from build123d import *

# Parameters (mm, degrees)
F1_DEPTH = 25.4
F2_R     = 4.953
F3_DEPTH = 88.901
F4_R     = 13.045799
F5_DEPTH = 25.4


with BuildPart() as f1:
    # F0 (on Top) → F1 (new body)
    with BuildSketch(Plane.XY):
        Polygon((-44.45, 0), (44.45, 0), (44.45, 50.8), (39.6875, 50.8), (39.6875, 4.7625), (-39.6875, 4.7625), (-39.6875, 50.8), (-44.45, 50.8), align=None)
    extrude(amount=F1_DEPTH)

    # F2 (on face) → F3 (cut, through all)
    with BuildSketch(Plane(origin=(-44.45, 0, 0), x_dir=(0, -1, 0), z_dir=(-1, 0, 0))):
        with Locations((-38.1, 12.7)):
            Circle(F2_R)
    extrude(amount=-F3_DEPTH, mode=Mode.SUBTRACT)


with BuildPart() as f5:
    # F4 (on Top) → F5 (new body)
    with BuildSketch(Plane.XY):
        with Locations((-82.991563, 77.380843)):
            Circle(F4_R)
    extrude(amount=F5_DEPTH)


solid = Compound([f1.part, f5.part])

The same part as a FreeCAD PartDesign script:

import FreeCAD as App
import Part
import Sketcher

V = App.Vector
Q = App.Units.Quantity

doc = App.newDocument("Part")
body = doc.addObject("PartDesign::Body", "Body")

# Sketch on XY plane
sketch1 = body.newObject("Sketcher::SketchObject", "Sketch")
sketch1.AttachmentSupport = (doc.getObject("XY_Plane"), [""])
sketch1.MapMode = "FlatFace"
sketch1.addGeometry(Part.LineSegment(V(-44.5, 0, 0), V(44.5, 0, 0)), False)
sketch1.addGeometry(Part.LineSegment(V(44.5, 0, 0), V(44.5, 50.8, 0)), False)
sketch1.addGeometry(Part.LineSegment(V(44.5, 50.8, 0), V(39.7, 50.8, 0)), False)
sketch1.addGeometry(Part.LineSegment(V(39.7, 50.8, 0), V(39.7, 4.8, 0)), False)
sketch1.addGeometry(Part.LineSegment(V(39.7, 4.8, 0), V(-39.7, 4.8, 0)), False)
sketch1.addGeometry(Part.LineSegment(V(-39.7, 4.8, 0), V(-39.7, 50.8, 0)), False)
sketch1.addGeometry(Part.LineSegment(V(-39.7, 50.8, 0), V(-44.5, 50.8, 0)), False)
sketch1.addGeometry(Part.LineSegment(V(-44.5, 50.8, 0), V(-44.5, 0, 0)), False)
sketch1.addConstraint(Sketcher.Constraint("Coincident", 0, 2, 1, 1))
sketch1.addConstraint(Sketcher.Constraint("Coincident", 1, 2, 2, 1))
sketch1.addConstraint(Sketcher.Constraint("Coincident", 2, 2, 3, 1))
sketch1.addConstraint(Sketcher.Constraint("Coincident", 3, 2, 4, 1))
sketch1.addConstraint(Sketcher.Constraint("Coincident", 4, 2, 5, 1))
sketch1.addConstraint(Sketcher.Constraint("Coincident", 5, 2, 6, 1))
sketch1.addConstraint(Sketcher.Constraint("Coincident", 6, 2, 7, 1))
sketch1.addConstraint(Sketcher.Constraint("Coincident", 7, 2, 0, 1))
sketch1.addConstraint(Sketcher.Constraint("Horizontal", 0))
sketch1.addConstraint(Sketcher.Constraint("Vertical", 1))
sketch1.addConstraint(Sketcher.Constraint("Horizontal", 2))
sketch1.addConstraint(Sketcher.Constraint("Vertical", 3))
sketch1.addConstraint(Sketcher.Constraint("Horizontal", 4))
sketch1.addConstraint(Sketcher.Constraint("Vertical", 5))
sketch1.addConstraint(Sketcher.Constraint("Horizontal", 6))
sketch1.addConstraint(Sketcher.Constraint("Vertical", 7))
sketch1.addConstraint(Sketcher.Constraint("Symmetric", 0, 2, 7, 2, -1, 1))
sketch1.addConstraint(Sketcher.Constraint("Symmetric", 2, 2, 5, 2, -2))
sketch1.addConstraint(Sketcher.Constraint("DistanceY", 1, 1, 1, 2, Q("2 in")))
sketch1.addConstraint(Sketcher.Constraint("DistanceX", 0, 1, 0, 2, Q("3.5 in")))
sketch1.addConstraint(Sketcher.Constraint("DistanceX", 2, 2, 2, 1, Q("0.1875 in")))
sketch1.addConstraint(Sketcher.Constraint("DistanceY", 3, 2, 3, 1, Q("1.8125 in")))
pad1 = body.newObject("PartDesign::Pad", "Pad")
pad1.Profile = sketch1
pad1.Length = Q("1 in")

# Sketch on YZ plane
sketch2 = body.newObject("Sketcher::SketchObject", "Sketch001")
sketch2.AttachmentSupport = (doc.getObject("YZ_Plane"), [""])
sketch2.MapMode = "FlatFace"
sketch2.AttachmentOffset = App.Placement(V(0, 0, -1.75 * 25.4), App.Rotation())
sketch2.addGeometry(Part.Circle(V(38.1, 12.7, 0), V(0, 0, 1), 5), False)
sketch2.addConstraint(Sketcher.Constraint("Diameter", 0, Q("0.39 in")))
sketch2.addConstraint(Sketcher.Constraint("DistanceX", -1, 1, 0, 3, Q("1.5 in")))
sketch2.addConstraint(Sketcher.Constraint("DistanceY", -1, 1, 0, 3, Q("0.5 in")))
pocket1 = body.newObject("PartDesign::Pocket", "Pocket")
pocket1.Profile = sketch2
pocket1.Type = "ThroughAll"
pocket1.Reversed = True
body2 = doc.addObject("PartDesign::Body", "Body001")

# Sketch on XY plane
sketch3 = body2.newObject("Sketcher::SketchObject", "Sketch002")
sketch3.AttachmentSupport = (doc.getObject("XY_Plane001"), [""])
sketch3.MapMode = "FlatFace"
sketch3.addGeometry(Part.Circle(V(-83, 77, 0), V(0, 0, 1), 13), False)
sketch3.addConstraint(Sketcher.Constraint("Diameter", 0, Q("26.091598 mm")))
sketch3.addConstraint(Sketcher.Constraint("DistanceX", 0, 3, -1, 1, Q("82.991563 mm")))
sketch3.addConstraint(Sketcher.Constraint("DistanceY", -1, 1, 0, 3, Q("77.380843 mm")))
pad2 = body2.newObject("PartDesign::Pad", "Pad001")
pad2.Profile = sketch3
pad2.Length = Q("1 in")

doc.recompute()
